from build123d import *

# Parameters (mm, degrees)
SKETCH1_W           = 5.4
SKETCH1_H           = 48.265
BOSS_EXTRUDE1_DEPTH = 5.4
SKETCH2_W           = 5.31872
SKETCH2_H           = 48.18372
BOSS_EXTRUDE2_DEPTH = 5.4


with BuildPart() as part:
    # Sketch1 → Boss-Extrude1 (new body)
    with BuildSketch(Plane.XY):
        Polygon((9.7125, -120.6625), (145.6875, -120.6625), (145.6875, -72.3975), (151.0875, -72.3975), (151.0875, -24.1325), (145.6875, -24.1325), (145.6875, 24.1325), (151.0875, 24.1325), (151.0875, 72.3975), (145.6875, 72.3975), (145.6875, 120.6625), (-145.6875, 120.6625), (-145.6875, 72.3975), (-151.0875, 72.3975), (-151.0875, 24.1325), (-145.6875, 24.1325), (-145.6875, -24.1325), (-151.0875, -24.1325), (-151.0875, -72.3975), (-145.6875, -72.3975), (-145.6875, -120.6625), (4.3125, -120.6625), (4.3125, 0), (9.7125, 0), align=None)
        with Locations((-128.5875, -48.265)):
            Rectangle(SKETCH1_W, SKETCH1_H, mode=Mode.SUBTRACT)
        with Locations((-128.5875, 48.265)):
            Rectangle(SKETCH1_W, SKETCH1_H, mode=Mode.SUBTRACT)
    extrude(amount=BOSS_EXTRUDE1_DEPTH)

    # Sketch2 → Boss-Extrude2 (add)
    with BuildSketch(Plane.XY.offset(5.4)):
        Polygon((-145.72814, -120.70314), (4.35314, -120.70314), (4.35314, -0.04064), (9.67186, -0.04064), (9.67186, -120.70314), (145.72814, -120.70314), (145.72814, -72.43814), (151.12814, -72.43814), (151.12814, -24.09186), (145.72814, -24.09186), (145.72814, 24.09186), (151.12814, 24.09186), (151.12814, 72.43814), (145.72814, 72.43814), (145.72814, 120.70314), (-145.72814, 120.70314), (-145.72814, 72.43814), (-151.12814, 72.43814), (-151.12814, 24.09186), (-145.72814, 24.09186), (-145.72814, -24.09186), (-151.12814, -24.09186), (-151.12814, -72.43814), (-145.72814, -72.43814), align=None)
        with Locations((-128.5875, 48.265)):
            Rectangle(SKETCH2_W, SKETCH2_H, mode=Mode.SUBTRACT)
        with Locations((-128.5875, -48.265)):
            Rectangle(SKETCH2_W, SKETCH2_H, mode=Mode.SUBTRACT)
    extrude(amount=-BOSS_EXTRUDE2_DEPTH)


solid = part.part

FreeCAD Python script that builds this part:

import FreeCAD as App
import Part
import Sketcher

V = App.Vector
Q = App.Units.Quantity

doc = App.newDocument("Part")
params = doc.addObject("Spreadsheet::Sheet", "Params")
for row, (alias, value) in enumerate([
    ("sketch1_width", "150 mm"),
    ("sketch1_width2", "5.4 mm"),
    ("pad1_length", "5.4 mm"),
    ("sketch2_width", "5.4 mm"),
    ("pad2_length", "5.4 mm"),
], start=1):
    params.set(f"A{row}", alias)
    params.set(f"B{row}", "=" + value)
    params.setAlias(f"B{row}", alias)

body = doc.addObject("PartDesign::Body", "Body")

# Sketch on XY plane
sketch1 = body.newObject("Sketcher::SketchObject", "Sketch")
sketch1.AttachmentSupport = (doc.getObject("XY_Plane"), [""])
sketch1.MapMode = "FlatFace"
sketch1.addGeometry([
    Part.LineSegment(V(9.7125, -120.6625, 0), V(145.6875, -120.6625, 0)),  # 0
    Part.LineSegment(V(145.6875, -120.6625, 0), V(145.6875, -72.3975, 0)),  # 1
    Part.LineSegment(V(145.6875, -72.3975, 0), V(151.0875, -72.3975, 0)),  # 2
    Part.LineSegment(V(151.0875, -72.3975, 0), V(151.0875, -24.1325, 0)),  # 3
    Part.LineSegment(V(151.0875, -24.1325, 0), V(145.6875, -24.1325, 0)),  # 4
    Part.LineSegment(V(145.6875, -24.1325, 0), V(145.6875, 24.1325, 0)),  # 5
    Part.LineSegment(V(145.6875, 24.1325, 0), V(151.0875, 24.1325, 0)),  # 6
    Part.LineSegment(V(151.0875, 24.1325, 0), V(151.0875, 72.3975, 0)),  # 7
    Part.LineSegment(V(151.0875, 72.3975, 0), V(145.6875, 72.3975, 0)),  # 8
    Part.LineSegment(V(145.6875, 72.3975, 0), V(145.6875, 120.6625, 0)),  # 9
    Part.LineSegment(V(145.6875, 120.6625, 0), V(-145.6875, 120.6625, 0)),  # 10
    Part.LineSegment(V(-145.6875, 120.6625, 0), V(-145.6875, 72.3975, 0)),  # 11
    Part.LineSegment(V(-145.6875, 72.3975, 0), V(-151.0875, 72.3975, 0)),  # 12
    Part.LineSegment(V(-151.0875, 72.3975, 0), V(-151.0875, 24.1325, 0)),  # 13
    Part.LineSegment(V(-151.0875, 24.1325, 0), V(-145.6875, 24.1325, 0)),  # 14
    Part.LineSegment(V(-145.6875, 24.1325, 0), V(-145.6875, -24.1325, 0)),  # 15
    Part.LineSegment(V(-145.6875, -24.1325, 0), V(-151.0875, -24.1325, 0)),  # 16
    Part.LineSegment(V(-151.0875, -24.1325, 0), V(-151.0875, -72.3975, 0)),  # 17
    Part.LineSegment(V(-151.0875, -72.3975, 0), V(-145.6875, -72.3975, 0)),  # 18
    Part.LineSegment(V(-145.6875, -72.3975, 0), V(-145.6875, -120.6625, 0)),  # 19
    Part.LineSegment(V(-145.6875, -120.6625, 0), V(4.3125, -120.6625, 0)),  # 20
    Part.LineSegment(V(4.3125, -120.6625, 0), V(4.3125, 0, 0)),  # 21
    Part.LineSegment(V(4.3125, 0, 0), V(9.7125, 0, 0)),  # 22
    Part.LineSegment(V(9.7125, 0, 0), V(9.7125, -120.6625, 0)),  # 23
    Part.LineSegment(V(-125.8875, -72.3975, 0), V(-131.2875, -72.3975, 0)),  # 24
    Part.LineSegment(V(-131.2875, -72.3975, 0), V(-131.2875, -24.1325, 0)),  # 25
    Part.LineSegment(V(-131.2875, -24.1325, 0), V(-125.8875, -24.1325, 0)),  # 26
    Part.LineSegment(V(-125.8875, -24.1325, 0), V(-125.8875, -72.3975, 0)),  # 27
    Part.LineSegment(V(-125.8875, 24.1325, 0), V(-131.2875, 24.1325, 0)),  # 28
    Part.LineSegment(V(-131.2875, 24.1325, 0), V(-131.2875, 72.3975, 0)),  # 29
    Part.LineSegment(V(-131.2875, 72.3975, 0), V(-125.8875, 72.3975, 0)),  # 30
    Part.LineSegment(V(-125.8875, 72.3975, 0), V(-125.8875, 24.1325, 0)),  # 31
], False)
sketch1.addConstraint([
    Sketcher.Constraint("Coincident", 0, 2, 1, 1),
    Sketcher.Constraint("Coincident", 1, 2, 2, 1),
    Sketcher.Constraint("Coincident", 2, 2, 3, 1),
    Sketcher.Constraint("Coincident", 3, 2, 4, 1),
    Sketcher.Constraint("Coincident", 4, 2, 5, 1),
    Sketcher.Constraint("Coincident", 5, 2, 6, 1),
    Sketcher.Constraint("Coincident", 6, 2, 7, 1),
    Sketcher.Constraint("Coincident", 7, 2, 8, 1),
    Sketcher.Constraint("Coincident", 8, 2, 9, 1),
    Sketcher.Constraint("Coincident", 9, 2, 10, 1),
    Sketcher.Constraint("Coincident", 10, 2, 11, 1),
    Sketcher.Constraint("Coincident", 11, 2, 12, 1),
    Sketcher.Constraint("Coincident", 12, 2, 13, 1),
    Sketcher.Constraint("Coincident", 13, 2, 14, 1),
    Sketcher.Constraint("Coincident", 14, 2, 15, 1),
    Sketcher.Constraint("Coincident", 15, 2, 16, 1),
    Sketcher.Constraint("Coincident", 16, 2, 17, 1),
    Sketcher.Constraint("Coincident", 17, 2, 18, 1),
    Sketcher.Constraint("Coincident", 18, 2, 19, 1),
    Sketcher.Constraint("Coincident", 19, 2, 20, 1),
    Sketcher.Constraint("Coincident", 20, 2, 21, 1),
    Sketcher.Constraint("Coincident", 21, 2, 22, 1),
    Sketcher.Constraint("Coincident", 22, 2, 23, 1),
    Sketcher.Constraint("Coincident", 23, 2, 0, 1),
    Sketcher.Constraint("Coincident", 24, 2, 25, 1),
    Sketcher.Constraint("Coincident", 25, 2, 26, 1),
    Sketcher.Constraint("Coincident", 26, 2, 27, 1),
    Sketcher.Constraint("Coincident", 27, 2, 24, 1),
    Sketcher.Constraint("Coincident", 28, 2, 29, 1),
    Sketcher.Constraint("Coincident", 29, 2, 30, 1),
    Sketcher.Constraint("Coincident", 30, 2, 31, 1),
    Sketcher.Constraint("Coincident", 31, 2, 28, 1),
    Sketcher.Constraint("Horizontal", 0),
    Sketcher.Constraint("Vertical", 1),
    Sketcher.Constraint("Horizontal", 2),
    Sketcher.Constraint("Vertical", 3),
    Sketcher.Constraint("Horizontal", 4),
    Sketcher.Constraint("Vertical", 5),
    Sketcher.Constraint("Horizontal", 6),
    Sketcher.Constraint("Vertical", 7),
    Sketcher.Constraint("Horizontal", 8),
    Sketcher.Constraint("Vertical", 9),
    Sketcher.Constraint("Horizontal", 10),
    Sketcher.Constraint("Vertical", 11),
    Sketcher.Constraint("Horizontal", 12),
    Sketcher.Constraint("Vertical", 13),
    Sketcher.Constraint("Horizontal", 14),
    Sketcher.Constraint("Vertical", 15),
    Sketcher.Constraint("Horizontal", 16),
    Sketcher.Constraint("Vertical", 17),
    Sketcher.Constraint("Horizontal", 18),
    Sketcher.Constraint("Vertical", 19),
    Sketcher.Constraint("Horizontal", 20),
    Sketcher.Constraint("Vertical", 21),
    Sketcher.Constraint("Horizontal", 22),
    Sketcher.Constraint("Vertical", 23),
    Sketcher.Constraint("Horizontal", 24),
    Sketcher.Constraint("Vertical", 25),
    Sketcher.Constraint("Horizontal", 26),
    Sketcher.Constraint("Vertical", 27),
    Sketcher.Constraint("Horizontal", 28),
    Sketcher.Constraint("Vertical", 29),
    Sketcher.Constraint("Horizontal", 30),
    Sketcher.Constraint("Vertical", 31),
    Sketcher.Constraint("Symmetric", 0, 2, 10, 2, -1, 1),
    Sketcher.Constraint("Symmetric", 2, 2, 12, 2, -1, 1),
    Sketcher.Constraint("Symmetric", 4, 2, 14, 2, -1, 1),
    Sketcher.Constraint("Symmetric", 6, 2, 16, 2, -1, 1),
    Sketcher.Constraint("Symmetric", 8, 2, 18, 2, -1, 1),
    Sketcher.Constraint("Symmetric", 8, 2, 11, 2, -2),
    Sketcher.Constraint("Symmetric", 6, 2, 13, 2, -2),
    Sketcher.Constraint("Symmetric", 25, 2, 28, 2, -1),
    Sketcher.Constraint("Symmetric", 27, 2, 30, 2, -1),
    Sketcher.Constraint("PointOnObject", 21, 2, -1),
    Sketcher.Constraint("Horizontal", 0, 2, 19, 2),
    Sketcher.Constraint("Horizontal", 18, 2, 24, 2),
    Sketcher.Constraint("Horizontal", 16, 2, 25, 2),
    Sketcher.Constraint("Vertical", 1, 2, 4, 2),
    Sketcher.Constraint("Equal", 18, 22),
    Sketcher.Constraint("Equal", 22, 24),
    Sketcher.Constraint("Equal", 1, 3),
    Sketcher.Constraint("Equal", 3, 5),
    Sketcher.Constraint("DistanceX", 20, 1, 20, 2, Q("150 mm")),
    Sketcher.Constraint("DistanceX", 2, 1, 2, 2, Q("5.4 mm")),
    Sketcher.Constraint("DistanceX", 18, 2, 24, 2, Q("14.4 mm")),
    Sketcher.Constraint("DistanceX", 0, 1, 0, 2, Q("135.975 mm")),
    Sketcher.Constraint("DistanceY", 1, 1, 1, 2, Q("48.265 mm")),
])
sketch1.setExpression("Constraints[82]", "Params.sketch1_width")
sketch1.setExpression("Constraints[83]", "Params.sketch1_width2")
pad1 = body.newObject("PartDesign::Pad", "Pad")
pad1.Profile = sketch1
pad1.setExpression("Length", "Params.pad1_length")

# Sketch on XY plane
sketch2 = body.newObject("Sketcher::SketchObject", "Sketch001")
sketch2.AttachmentSupport = (doc.getObject("XY_Plane"), [""])
sketch2.MapMode = "FlatFace"
sketch2.AttachmentOffset = App.Placement(V(0, 0, 5.4), App.Rotation())
sketch2.addGeometry([
    Part.LineSegment(V(-145.72814, -120.70314, 0), V(4.35314, -120.70314, 0)),  # 0
    Part.LineSegment(V(4.35314, -120.70314, 0), V(4.35314, -0.04064, 0)),  # 1
    Part.LineSegment(V(4.35314, -0.04064, 0), V(9.67186, -0.04064, 0)),  # 2
    Part.LineSegment(V(9.67186, -0.04064, 0), V(9.67186, -120.70314, 0)),  # 3
    Part.LineSegment(V(9.67186, -120.70314, 0), V(145.72814, -120.70314, 0)),  # 4
    Part.LineSegment(V(145.72814, -120.70314, 0), V(145.72814, -72.43814, 0)),  # 5
    Part.LineSegment(V(145.72814, -72.43814, 0), V(151.12814, -72.43814, 0)),  # 6
    Part.LineSegment(V(151.12814, -72.43814, 0), V(151.12814, -24.09186, 0)),  # 7
    Part.LineSegment(V(151.12814, -24.09186, 0), V(145.72814, -24.09186, 0)),  # 8
    Part.LineSegment(V(145.72814, -24.09186, 0), V(145.72814, 24.09186, 0)),  # 9
    Part.LineSegment(V(145.72814, 24.09186, 0), V(151.12814, 24.09186, 0)),  # 10
    Part.LineSegment(V(151.12814, 24.09186, 0), V(151.12814, 72.43814, 0)),  # 11
    Part.LineSegment(V(151.12814, 72.43814, 0), V(145.72814, 72.43814, 0)),  # 12
    Part.LineSegment(V(145.72814, 72.43814, 0), V(145.72814, 120.70314, 0)),  # 13
    Part.LineSegment(V(145.72814, 120.70314, 0), V(-145.72814, 120.70314, 0)),  # 14
    Part.LineSegment(V(-145.72814, 120.70314, 0), V(-145.72814, 72.43814, 0)),  # 15
    Part.LineSegment(V(-145.72814, 72.43814, 0), V(-151.12814, 72.43814, 0)),  # 16
    Part.LineSegment(V(-151.12814, 72.43814, 0), V(-151.12814, 24.09186, 0)),  # 17
    Part.LineSegment(V(-151.12814, 24.09186, 0), V(-145.72814, 24.09186, 0)),  # 18
    Part.LineSegment(V(-145.72814, 24.09186, 0), V(-145.72814, -24.09186, 0)),  # 19
    Part.LineSegment(V(-145.72814, -24.09186, 0), V(-151.12814, -24.09186, 0)),  # 20
    Part.LineSegment(V(-151.12814, -24.09186, 0), V(-151.12814, -72.43814, 0)),  # 21
    Part.LineSegment(V(-151.12814, -72.43814, 0), V(-145.72814, -72.43814, 0)),  # 22
    Part.LineSegment(V(-145.72814, -72.43814, 0), V(-145.72814, -120.70314, 0)),  # 23
    Part.LineSegment(V(-125.92814, -72.35686, 0), V(-131.24686, -72.35686, 0)),  # 24
    Part.LineSegment(V(-131.24686, -72.35686, 0), V(-131.24686, -24.17314, 0)),  # 25
    Part.LineSegment(V(-131.24686, -24.17314, 0), V(-125.92814, -24.17314, 0)),  # 26
    Part.LineSegment(V(-125.92814, -24.17314, 0), V(-125.92814, -72.35686, 0)),  # 27
    Part.LineSegment(V(-125.92814, 24.17314, 0), V(-131.24686, 24.17314, 0)),  # 28
    Part.LineSegment(V(-131.24686, 24.17314, 0), V(-131.24686, 72.35686, 0)),  # 29
    Part.LineSegment(V(-131.24686, 72.35686, 0), V(-125.92814, 72.35686, 0)),  # 30
    Part.LineSegment(V(-125.92814, 72.35686, 0), V(-125.92814, 24.17314, 0)),  # 31
], False)
sketch2.addConstraint([
    Sketcher.Constraint("Coincident", 0, 2, 1, 1),
    Sketcher.Constraint("Coincident", 1, 2, 2, 1),
    Sketcher.Constraint("Coincident", 2, 2, 3, 1),
    Sketcher.Constraint("Coincident", 3, 2, 4, 1),
    Sketcher.Constraint("Coincident", 4, 2, 5, 1),
    Sketcher.Constraint("Coincident", 5, 2, 6, 1),
    Sketcher.Constraint("Coincident", 6, 2, 7, 1),
    Sketcher.Constraint("Coincident", 7, 2, 8, 1),
    Sketcher.Constraint("Coincident", 8, 2, 9, 1),
    Sketcher.Constraint("Coincident", 9, 2, 10, 1),
    Sketcher.Constraint("Coincident", 10, 2, 11, 1),
    Sketcher.Constraint("Coincident", 11, 2, 12, 1),
    Sketcher.Constraint("Coincident", 12, 2, 13, 1),
    Sketcher.Constraint("Coincident", 13, 2, 14, 1),
    Sketcher.Constraint("Coincident", 14, 2, 15, 1),
    Sketcher.Constraint("Coincident", 15, 2, 16, 1),
    Sketcher.Constraint("Coincident", 16, 2, 17, 1),
    Sketcher.Constraint("Coincident", 17, 2, 18, 1),
    Sketcher.Constraint("Coincident", 18, 2, 19, 1),
    Sketcher.Constraint("Coincident", 19, 2, 20, 1),
    Sketcher.Constraint("Coincident", 20, 2, 21, 1),
    Sketcher.Constraint("Coincident", 21, 2, 22, 1),
    Sketcher.Constraint("Coincident", 22, 2, 23, 1),
    Sketcher.Constraint("Coincident", 23, 2, 0, 1),
    Sketcher.Constraint("Coincident", 24, 2, 25, 1),
    Sketcher.Constraint("Coincident", 25, 2, 26, 1),
    Sketcher.Constraint("Coincident", 26, 2, 27, 1),
    Sketcher.Constraint("Coincident", 27, 2, 24, 1),
    Sketcher.Constraint("Coincident", 28, 2, 29, 1),
    Sketcher.Constraint("Coincident", 29, 2, 30, 1),
    Sketcher.Constraint("Coincident", 30, 2, 31, 1),
    Sketcher.Constraint("Coincident", 31, 2, 28, 1),
    Sketcher.Constraint("Horizontal", 0),
    Sketcher.Constraint("Vertical", 1),
    Sketcher.Constraint("Horizontal", 2),
    Sketcher.Constraint("Vertical", 3),
    Sketcher.Constraint("Horizontal", 4),
    Sketcher.Constraint("Vertical", 5),
    Sketcher.Constraint("Horizontal", 6),
    Sketcher.Constraint("Vertical", 7),
    Sketcher.Constraint("Horizontal", 8),
    Sketcher.Constraint("Vertical", 9),
    Sketcher.Constraint("Horizontal", 10),
    Sketcher.Constraint("Vertical", 11),
    Sketcher.Constraint("Horizontal", 12),
    Sketcher.Constraint("Vertical", 13),
    Sketcher.Constraint("Horizontal", 14),
    Sketcher.Constraint("Vertical", 15),
    Sketcher.Constraint("Horizontal", 16),
    Sketcher.Constraint("Vertical", 17),
    Sketcher.Constraint("Horizontal", 18),
    Sketcher.Constraint("Vertical", 19),
    Sketcher.Constraint("Horizontal", 20),
    Sketcher.Constraint("Vertical", 21),
    Sketcher.Constraint("Horizontal", 22),
    Sketcher.Constraint("Vertical", 23),
    Sketcher.Constraint("Horizontal", 24),
    Sketcher.Constraint("Vertical", 25),
    Sketcher.Constraint("Horizontal", 26),
    Sketcher.Constraint("Vertical", 27),
    Sketcher.Constraint("Horizontal", 28),
    Sketcher.Constraint("Vertical", 29),
    Sketcher.Constraint("Horizontal", 30),
    Sketcher.Constraint("Vertical", 31),
    Sketcher.Constraint("Symmetric", 4, 2, 14, 2, -1, 1),
    Sketcher.Constraint("Symmetric", 6, 2, 16, 2, -1, 1),
    Sketcher.Constraint("Symmetric", 8, 2, 18, 2, -1, 1),
    Sketcher.Constraint("Symmetric", 10, 2, 20, 2, -1, 1),
    Sketcher.Constraint("Symmetric", 12, 2, 22, 2, -1, 1),
    Sketcher.Constraint("Symmetric", 12, 2, 15, 2, -2),
    Sketcher.Constraint("Symmetric", 10, 2, 17, 2, -2),
    Sketcher.Constraint("Symmetric", 25, 2, 28, 2, -1),
    Sketcher.Constraint("Symmetric", 27, 2, 30, 2, -1),
    Sketcher.Constraint("Horizontal", 0, 2, 3, 2),
    Sketcher.Constraint("Vertical", 5, 2, 8, 2),
    Sketcher.Constraint("Equal", 2, 24),
    Sketcher.Constraint("Equal", 19, 25),
    Sketcher.Constraint("DistanceX", 6, 1, 6, 2, Q("5.4 mm")),
    Sketcher.Constraint("DistanceX", 14, 2, 2, 2, Q("155.4 mm")),
    Sketcher.Constraint("DistanceX", 19, 2, 26, 2, Q("19.8 mm")),
    Sketcher.Constraint("DistanceY", 5, 1, 5, 2, Q("48.265 mm")),
    Sketcher.Constraint("DistanceY", 5, 2, 9, 2, Q("96.53 mm")),
    Sketcher.Constraint("DistanceY", 1, 1, 1, 2, Q("120.6625 mm")),
    Sketcher.Constraint("DistanceX", 0, 2, 4, 2, Q("141.375 mm")),
    Sketcher.Constraint("DistanceY", 24, 2, 19, 2, Q("48.265 mm")),
    Sketcher.Constraint("DistanceX", 0, 1, 0, 2, Q("150.08128 mm")),
    Sketcher.Constraint("DistanceY", 7, 1, 7, 2, Q("48.34628 mm")),
])
sketch2.setExpression("Constraints[77]", "Params.sketch2_width")
pad2 = body.newObject("PartDesign::Pad", "Pad001")
pad2.Profile = sketch2
pad2.setExpression("Length", "Params.pad2_length")
pad2.Reversed = True

doc.recompute()
